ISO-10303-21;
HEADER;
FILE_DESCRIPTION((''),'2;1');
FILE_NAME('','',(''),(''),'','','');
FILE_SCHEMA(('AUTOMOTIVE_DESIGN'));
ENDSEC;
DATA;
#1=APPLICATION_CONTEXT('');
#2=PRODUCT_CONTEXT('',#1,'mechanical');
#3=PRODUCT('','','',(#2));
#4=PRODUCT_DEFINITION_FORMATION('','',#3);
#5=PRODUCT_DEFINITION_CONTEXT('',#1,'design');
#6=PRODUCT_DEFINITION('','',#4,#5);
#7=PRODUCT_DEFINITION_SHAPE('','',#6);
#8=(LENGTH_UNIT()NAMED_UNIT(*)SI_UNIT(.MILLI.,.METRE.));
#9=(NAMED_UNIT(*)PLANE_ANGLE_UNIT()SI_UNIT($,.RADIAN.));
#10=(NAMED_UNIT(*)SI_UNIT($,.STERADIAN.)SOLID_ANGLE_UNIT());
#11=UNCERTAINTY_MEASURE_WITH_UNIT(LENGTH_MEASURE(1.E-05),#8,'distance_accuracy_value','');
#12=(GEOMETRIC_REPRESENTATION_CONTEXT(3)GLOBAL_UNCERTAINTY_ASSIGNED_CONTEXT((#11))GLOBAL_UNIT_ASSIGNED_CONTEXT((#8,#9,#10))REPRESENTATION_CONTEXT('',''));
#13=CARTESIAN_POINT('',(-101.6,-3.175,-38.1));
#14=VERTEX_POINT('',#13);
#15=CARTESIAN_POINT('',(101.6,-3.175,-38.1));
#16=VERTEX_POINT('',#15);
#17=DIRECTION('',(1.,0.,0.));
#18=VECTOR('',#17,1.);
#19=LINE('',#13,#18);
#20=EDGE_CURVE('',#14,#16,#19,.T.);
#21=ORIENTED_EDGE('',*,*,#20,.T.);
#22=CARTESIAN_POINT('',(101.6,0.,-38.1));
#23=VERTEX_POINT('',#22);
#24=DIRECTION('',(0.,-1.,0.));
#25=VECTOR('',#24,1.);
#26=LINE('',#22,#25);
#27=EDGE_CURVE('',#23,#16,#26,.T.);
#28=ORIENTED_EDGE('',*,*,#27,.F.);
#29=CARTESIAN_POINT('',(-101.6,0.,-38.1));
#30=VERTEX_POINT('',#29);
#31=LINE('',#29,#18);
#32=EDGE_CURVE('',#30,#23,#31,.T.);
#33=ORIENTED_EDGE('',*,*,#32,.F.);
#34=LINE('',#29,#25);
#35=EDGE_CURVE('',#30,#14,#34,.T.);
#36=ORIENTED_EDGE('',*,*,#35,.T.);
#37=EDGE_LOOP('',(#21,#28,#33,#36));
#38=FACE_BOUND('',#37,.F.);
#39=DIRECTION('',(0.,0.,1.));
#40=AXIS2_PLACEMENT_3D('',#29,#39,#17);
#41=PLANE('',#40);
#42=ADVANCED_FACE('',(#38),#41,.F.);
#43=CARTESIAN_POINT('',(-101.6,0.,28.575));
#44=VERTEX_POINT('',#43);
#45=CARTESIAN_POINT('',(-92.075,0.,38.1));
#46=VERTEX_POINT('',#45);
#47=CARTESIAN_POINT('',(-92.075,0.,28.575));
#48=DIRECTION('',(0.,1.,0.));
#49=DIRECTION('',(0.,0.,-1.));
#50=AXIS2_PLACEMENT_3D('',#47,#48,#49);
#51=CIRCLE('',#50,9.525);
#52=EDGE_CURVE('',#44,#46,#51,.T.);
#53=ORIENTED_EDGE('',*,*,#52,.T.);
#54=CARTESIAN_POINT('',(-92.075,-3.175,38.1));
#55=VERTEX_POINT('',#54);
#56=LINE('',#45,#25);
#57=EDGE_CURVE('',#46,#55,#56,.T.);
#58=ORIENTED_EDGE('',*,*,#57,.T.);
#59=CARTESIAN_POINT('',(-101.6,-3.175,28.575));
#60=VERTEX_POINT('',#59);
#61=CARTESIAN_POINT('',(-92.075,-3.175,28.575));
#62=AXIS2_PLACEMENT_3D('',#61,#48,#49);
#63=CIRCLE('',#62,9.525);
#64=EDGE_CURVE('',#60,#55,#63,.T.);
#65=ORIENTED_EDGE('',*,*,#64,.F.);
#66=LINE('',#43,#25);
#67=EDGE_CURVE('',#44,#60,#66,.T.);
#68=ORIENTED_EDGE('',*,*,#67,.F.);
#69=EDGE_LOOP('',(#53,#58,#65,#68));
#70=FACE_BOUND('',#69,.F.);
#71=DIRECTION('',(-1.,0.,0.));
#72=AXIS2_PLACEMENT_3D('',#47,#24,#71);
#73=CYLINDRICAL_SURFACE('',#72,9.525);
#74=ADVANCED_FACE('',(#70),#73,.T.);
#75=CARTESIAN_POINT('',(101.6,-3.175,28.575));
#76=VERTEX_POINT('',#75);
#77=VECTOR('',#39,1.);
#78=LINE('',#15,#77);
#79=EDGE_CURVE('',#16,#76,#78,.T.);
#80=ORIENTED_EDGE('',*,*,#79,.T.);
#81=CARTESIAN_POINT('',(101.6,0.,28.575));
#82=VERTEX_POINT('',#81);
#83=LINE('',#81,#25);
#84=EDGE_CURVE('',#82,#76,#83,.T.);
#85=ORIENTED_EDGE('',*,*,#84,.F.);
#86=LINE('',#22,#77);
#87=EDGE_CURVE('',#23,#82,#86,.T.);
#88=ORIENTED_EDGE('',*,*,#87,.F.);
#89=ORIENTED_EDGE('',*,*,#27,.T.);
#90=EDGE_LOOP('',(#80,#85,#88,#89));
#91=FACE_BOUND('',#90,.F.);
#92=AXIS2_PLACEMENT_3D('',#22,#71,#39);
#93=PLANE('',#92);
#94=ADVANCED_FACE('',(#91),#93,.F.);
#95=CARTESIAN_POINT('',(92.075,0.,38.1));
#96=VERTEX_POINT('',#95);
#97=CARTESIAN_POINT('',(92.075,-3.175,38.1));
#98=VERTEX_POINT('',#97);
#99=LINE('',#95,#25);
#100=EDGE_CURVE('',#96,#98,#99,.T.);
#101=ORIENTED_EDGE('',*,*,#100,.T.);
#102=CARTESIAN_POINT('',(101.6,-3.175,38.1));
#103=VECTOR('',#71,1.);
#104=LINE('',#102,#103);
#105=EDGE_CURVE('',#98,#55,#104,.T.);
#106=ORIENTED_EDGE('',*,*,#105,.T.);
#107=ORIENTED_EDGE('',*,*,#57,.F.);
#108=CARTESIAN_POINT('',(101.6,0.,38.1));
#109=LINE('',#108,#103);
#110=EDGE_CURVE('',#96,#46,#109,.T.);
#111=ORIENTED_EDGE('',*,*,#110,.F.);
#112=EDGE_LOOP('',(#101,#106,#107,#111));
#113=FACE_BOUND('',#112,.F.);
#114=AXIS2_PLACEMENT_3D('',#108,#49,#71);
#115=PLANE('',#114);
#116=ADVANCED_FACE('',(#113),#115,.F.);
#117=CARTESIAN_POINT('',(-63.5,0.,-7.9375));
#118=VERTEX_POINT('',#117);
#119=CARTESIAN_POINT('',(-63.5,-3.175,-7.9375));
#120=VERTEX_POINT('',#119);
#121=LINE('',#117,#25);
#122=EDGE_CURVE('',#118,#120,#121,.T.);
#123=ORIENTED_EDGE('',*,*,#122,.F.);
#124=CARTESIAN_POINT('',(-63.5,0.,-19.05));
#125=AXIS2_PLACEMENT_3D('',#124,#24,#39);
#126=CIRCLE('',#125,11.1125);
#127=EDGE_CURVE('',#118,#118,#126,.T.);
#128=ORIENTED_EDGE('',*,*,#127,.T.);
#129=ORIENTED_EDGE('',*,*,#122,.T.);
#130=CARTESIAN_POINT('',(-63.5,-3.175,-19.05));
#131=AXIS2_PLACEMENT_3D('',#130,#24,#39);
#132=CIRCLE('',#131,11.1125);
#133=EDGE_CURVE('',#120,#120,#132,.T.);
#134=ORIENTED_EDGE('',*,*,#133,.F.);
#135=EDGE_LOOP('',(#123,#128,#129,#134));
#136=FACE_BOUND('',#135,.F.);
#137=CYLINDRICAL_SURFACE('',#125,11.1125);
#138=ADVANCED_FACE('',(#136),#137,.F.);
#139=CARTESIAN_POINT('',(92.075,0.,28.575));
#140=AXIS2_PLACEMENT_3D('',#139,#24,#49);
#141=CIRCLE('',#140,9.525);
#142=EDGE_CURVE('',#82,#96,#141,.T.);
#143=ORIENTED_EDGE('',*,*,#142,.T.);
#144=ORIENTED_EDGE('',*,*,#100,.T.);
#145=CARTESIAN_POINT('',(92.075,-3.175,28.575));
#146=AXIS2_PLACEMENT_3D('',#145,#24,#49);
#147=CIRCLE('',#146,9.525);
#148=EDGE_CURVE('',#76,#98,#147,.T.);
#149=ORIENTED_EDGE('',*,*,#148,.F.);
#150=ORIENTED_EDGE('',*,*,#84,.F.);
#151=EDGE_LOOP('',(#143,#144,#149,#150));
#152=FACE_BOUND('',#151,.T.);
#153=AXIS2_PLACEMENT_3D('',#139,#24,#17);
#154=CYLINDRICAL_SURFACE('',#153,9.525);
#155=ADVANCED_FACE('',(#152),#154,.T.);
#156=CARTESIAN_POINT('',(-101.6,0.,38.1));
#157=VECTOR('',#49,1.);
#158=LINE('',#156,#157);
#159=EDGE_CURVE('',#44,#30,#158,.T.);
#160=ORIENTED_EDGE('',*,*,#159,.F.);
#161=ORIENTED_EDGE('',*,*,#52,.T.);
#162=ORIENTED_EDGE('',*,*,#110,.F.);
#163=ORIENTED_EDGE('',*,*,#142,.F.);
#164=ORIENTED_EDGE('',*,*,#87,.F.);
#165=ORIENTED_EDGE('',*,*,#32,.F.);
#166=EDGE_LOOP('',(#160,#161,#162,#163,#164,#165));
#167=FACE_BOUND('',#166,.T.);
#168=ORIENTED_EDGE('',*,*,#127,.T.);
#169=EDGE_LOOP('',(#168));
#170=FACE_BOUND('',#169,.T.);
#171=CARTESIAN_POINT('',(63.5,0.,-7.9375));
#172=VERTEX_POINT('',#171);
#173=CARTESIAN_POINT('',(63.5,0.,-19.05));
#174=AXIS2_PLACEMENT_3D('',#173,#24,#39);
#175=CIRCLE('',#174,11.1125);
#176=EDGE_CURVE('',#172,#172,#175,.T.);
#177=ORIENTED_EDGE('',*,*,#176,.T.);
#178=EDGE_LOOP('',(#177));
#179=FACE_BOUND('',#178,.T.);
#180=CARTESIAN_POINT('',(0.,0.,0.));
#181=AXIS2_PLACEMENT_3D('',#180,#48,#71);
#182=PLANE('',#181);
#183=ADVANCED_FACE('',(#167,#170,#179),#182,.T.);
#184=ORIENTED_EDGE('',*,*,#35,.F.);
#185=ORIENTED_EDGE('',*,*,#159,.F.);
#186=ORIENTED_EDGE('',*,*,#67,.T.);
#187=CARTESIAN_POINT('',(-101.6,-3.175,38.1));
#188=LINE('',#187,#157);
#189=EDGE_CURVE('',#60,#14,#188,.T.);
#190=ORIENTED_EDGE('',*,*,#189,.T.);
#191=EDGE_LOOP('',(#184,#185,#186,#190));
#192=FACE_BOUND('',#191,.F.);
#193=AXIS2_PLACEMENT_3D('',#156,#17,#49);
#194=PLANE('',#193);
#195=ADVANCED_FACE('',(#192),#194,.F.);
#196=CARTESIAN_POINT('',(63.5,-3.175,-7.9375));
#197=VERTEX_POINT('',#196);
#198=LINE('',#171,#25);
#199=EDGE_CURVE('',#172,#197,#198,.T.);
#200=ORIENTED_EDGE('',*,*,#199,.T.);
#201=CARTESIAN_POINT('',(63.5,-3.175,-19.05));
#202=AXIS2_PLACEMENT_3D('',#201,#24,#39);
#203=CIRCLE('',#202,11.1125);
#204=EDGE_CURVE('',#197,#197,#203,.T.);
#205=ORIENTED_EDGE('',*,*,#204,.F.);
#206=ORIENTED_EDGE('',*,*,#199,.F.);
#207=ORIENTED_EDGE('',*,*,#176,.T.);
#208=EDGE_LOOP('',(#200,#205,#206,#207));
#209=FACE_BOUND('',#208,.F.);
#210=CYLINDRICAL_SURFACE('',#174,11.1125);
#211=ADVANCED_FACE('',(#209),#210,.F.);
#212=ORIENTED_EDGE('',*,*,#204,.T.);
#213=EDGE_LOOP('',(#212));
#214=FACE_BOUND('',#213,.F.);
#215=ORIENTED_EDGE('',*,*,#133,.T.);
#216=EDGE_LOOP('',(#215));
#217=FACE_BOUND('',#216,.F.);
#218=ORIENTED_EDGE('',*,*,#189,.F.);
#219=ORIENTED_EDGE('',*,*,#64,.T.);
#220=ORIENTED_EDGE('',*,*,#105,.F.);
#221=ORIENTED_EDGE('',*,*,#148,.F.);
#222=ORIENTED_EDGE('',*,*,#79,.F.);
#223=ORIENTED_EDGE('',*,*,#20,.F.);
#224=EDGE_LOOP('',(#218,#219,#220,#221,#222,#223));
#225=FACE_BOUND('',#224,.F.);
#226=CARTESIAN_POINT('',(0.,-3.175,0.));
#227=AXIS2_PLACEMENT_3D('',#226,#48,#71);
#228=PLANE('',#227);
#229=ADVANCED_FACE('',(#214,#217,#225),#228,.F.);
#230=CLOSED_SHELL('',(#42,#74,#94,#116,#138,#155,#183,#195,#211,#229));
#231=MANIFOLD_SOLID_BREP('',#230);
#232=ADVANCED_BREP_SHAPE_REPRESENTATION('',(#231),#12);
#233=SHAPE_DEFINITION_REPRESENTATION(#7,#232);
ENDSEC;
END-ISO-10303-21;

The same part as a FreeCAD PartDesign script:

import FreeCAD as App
import Part
import Sketcher

V = App.Vector
Q = App.Units.Quantity


def edges_at(feature, points):
    """Names of the edges that pass closest to the given points."""
    edges = feature.Shape.Edges
    near = lambda p: min(range(len(edges)), key=lambda i: edges[i].distToShape(Part.Vertex(*p))[0])
    return sorted({f"Edge{near(p) + 1}" for p in points})


def add_polygon(sketch, points):
    """Adds a closed chain of lines whose ends are joined by coincident constraints."""
    first, n = sketch.GeometryCount, len(points)
    for a, b in zip(points, points[1:] + points[:1]):
        sketch.addGeometry(Part.LineSegment(App.Vector(*a, 0), App.Vector(*b, 0)), False)
    for i in range(n):
        sketch.addConstraint(Sketcher.Constraint("Coincident", first + i, 2, first + (i + 1) % n, 1))

doc = App.newDocument("Part")
body = doc.addObject("PartDesign::Body", "Body")

sketch1 = body.newObject("Sketcher::SketchObject", "Sketch")
sketch1.AttachmentSupport = (doc.getObject("XZ_Plane"), [""])
sketch1.MapMode = "FlatFace"
add_polygon(sketch1, [(102, -38), (-102, -38), (-102, 38), (102, 38)])
sketch1.addConstraint([
    Sketcher.Constraint("Horizontal", 0),
    Sketcher.Constraint("Vertical", 1),
    Sketcher.Constraint("Horizontal", 2),
    Sketcher.Constraint("Vertical", 3),
    Sketcher.Constraint("Symmetric", 0, 2, 2, 2, -1, 1),
    Sketcher.Constraint("DistanceX", 0, 2, 0, 1, Q("8 in")),
    Sketcher.Constraint("DistanceY", 1, 1, 1, 2, Q("3 in")),
])
pad1 = body.newObject("PartDesign::Pad", "Pad")
pad1.Profile = sketch1
pad1.Length = Q("0.125 in")

sketch2 = body.newObject("Sketcher::SketchObject", "Sketch001")
sketch2.AttachmentSupport = (doc.getObject("XZ_Plane"), [""])
sketch2.MapMode = "FlatFace"
sketch2.addGeometry([
    Part.Circle(V(-64, -19, 0), V(0, 0, 1), 11),
    Part.Circle(V(64, -19, 0), V(0, 0, 1), 11),
], False)
sketch2.addConstraint([
    Sketcher.Constraint("Equal", 0, 1),
    Sketcher.Constraint("Symmetric", 0, 3, 1, 3, -2),
    Sketcher.Constraint("Diameter", 0, Q("0.875 in")),
    Sketcher.Constraint("DistanceX", 0, 3, 1, 3, Q("5 in")),
    Sketcher.Constraint("DistanceY", 0, 3, -1, 1, Q("0.75 in")),
])
doc.recompute()
hole = body.newObject("PartDesign::Hole", "Hole")
hole.Profile = sketch2
hole.ThreadType = "None"
hole.Diameter = Q("0.875 in")
hole.DepthType = "ThroughAll"
hole.Reversed = True
doc.recompute()

fillet = body.newObject("PartDesign::Fillet", "Fillet")
fillet.Base = (hole, edges_at(hole, [(101.6, -1.587, 38.1), (-101.6, -1.587, 38.1)]))
fillet.Radius = Q("0.375 in")

doc.recompute()
